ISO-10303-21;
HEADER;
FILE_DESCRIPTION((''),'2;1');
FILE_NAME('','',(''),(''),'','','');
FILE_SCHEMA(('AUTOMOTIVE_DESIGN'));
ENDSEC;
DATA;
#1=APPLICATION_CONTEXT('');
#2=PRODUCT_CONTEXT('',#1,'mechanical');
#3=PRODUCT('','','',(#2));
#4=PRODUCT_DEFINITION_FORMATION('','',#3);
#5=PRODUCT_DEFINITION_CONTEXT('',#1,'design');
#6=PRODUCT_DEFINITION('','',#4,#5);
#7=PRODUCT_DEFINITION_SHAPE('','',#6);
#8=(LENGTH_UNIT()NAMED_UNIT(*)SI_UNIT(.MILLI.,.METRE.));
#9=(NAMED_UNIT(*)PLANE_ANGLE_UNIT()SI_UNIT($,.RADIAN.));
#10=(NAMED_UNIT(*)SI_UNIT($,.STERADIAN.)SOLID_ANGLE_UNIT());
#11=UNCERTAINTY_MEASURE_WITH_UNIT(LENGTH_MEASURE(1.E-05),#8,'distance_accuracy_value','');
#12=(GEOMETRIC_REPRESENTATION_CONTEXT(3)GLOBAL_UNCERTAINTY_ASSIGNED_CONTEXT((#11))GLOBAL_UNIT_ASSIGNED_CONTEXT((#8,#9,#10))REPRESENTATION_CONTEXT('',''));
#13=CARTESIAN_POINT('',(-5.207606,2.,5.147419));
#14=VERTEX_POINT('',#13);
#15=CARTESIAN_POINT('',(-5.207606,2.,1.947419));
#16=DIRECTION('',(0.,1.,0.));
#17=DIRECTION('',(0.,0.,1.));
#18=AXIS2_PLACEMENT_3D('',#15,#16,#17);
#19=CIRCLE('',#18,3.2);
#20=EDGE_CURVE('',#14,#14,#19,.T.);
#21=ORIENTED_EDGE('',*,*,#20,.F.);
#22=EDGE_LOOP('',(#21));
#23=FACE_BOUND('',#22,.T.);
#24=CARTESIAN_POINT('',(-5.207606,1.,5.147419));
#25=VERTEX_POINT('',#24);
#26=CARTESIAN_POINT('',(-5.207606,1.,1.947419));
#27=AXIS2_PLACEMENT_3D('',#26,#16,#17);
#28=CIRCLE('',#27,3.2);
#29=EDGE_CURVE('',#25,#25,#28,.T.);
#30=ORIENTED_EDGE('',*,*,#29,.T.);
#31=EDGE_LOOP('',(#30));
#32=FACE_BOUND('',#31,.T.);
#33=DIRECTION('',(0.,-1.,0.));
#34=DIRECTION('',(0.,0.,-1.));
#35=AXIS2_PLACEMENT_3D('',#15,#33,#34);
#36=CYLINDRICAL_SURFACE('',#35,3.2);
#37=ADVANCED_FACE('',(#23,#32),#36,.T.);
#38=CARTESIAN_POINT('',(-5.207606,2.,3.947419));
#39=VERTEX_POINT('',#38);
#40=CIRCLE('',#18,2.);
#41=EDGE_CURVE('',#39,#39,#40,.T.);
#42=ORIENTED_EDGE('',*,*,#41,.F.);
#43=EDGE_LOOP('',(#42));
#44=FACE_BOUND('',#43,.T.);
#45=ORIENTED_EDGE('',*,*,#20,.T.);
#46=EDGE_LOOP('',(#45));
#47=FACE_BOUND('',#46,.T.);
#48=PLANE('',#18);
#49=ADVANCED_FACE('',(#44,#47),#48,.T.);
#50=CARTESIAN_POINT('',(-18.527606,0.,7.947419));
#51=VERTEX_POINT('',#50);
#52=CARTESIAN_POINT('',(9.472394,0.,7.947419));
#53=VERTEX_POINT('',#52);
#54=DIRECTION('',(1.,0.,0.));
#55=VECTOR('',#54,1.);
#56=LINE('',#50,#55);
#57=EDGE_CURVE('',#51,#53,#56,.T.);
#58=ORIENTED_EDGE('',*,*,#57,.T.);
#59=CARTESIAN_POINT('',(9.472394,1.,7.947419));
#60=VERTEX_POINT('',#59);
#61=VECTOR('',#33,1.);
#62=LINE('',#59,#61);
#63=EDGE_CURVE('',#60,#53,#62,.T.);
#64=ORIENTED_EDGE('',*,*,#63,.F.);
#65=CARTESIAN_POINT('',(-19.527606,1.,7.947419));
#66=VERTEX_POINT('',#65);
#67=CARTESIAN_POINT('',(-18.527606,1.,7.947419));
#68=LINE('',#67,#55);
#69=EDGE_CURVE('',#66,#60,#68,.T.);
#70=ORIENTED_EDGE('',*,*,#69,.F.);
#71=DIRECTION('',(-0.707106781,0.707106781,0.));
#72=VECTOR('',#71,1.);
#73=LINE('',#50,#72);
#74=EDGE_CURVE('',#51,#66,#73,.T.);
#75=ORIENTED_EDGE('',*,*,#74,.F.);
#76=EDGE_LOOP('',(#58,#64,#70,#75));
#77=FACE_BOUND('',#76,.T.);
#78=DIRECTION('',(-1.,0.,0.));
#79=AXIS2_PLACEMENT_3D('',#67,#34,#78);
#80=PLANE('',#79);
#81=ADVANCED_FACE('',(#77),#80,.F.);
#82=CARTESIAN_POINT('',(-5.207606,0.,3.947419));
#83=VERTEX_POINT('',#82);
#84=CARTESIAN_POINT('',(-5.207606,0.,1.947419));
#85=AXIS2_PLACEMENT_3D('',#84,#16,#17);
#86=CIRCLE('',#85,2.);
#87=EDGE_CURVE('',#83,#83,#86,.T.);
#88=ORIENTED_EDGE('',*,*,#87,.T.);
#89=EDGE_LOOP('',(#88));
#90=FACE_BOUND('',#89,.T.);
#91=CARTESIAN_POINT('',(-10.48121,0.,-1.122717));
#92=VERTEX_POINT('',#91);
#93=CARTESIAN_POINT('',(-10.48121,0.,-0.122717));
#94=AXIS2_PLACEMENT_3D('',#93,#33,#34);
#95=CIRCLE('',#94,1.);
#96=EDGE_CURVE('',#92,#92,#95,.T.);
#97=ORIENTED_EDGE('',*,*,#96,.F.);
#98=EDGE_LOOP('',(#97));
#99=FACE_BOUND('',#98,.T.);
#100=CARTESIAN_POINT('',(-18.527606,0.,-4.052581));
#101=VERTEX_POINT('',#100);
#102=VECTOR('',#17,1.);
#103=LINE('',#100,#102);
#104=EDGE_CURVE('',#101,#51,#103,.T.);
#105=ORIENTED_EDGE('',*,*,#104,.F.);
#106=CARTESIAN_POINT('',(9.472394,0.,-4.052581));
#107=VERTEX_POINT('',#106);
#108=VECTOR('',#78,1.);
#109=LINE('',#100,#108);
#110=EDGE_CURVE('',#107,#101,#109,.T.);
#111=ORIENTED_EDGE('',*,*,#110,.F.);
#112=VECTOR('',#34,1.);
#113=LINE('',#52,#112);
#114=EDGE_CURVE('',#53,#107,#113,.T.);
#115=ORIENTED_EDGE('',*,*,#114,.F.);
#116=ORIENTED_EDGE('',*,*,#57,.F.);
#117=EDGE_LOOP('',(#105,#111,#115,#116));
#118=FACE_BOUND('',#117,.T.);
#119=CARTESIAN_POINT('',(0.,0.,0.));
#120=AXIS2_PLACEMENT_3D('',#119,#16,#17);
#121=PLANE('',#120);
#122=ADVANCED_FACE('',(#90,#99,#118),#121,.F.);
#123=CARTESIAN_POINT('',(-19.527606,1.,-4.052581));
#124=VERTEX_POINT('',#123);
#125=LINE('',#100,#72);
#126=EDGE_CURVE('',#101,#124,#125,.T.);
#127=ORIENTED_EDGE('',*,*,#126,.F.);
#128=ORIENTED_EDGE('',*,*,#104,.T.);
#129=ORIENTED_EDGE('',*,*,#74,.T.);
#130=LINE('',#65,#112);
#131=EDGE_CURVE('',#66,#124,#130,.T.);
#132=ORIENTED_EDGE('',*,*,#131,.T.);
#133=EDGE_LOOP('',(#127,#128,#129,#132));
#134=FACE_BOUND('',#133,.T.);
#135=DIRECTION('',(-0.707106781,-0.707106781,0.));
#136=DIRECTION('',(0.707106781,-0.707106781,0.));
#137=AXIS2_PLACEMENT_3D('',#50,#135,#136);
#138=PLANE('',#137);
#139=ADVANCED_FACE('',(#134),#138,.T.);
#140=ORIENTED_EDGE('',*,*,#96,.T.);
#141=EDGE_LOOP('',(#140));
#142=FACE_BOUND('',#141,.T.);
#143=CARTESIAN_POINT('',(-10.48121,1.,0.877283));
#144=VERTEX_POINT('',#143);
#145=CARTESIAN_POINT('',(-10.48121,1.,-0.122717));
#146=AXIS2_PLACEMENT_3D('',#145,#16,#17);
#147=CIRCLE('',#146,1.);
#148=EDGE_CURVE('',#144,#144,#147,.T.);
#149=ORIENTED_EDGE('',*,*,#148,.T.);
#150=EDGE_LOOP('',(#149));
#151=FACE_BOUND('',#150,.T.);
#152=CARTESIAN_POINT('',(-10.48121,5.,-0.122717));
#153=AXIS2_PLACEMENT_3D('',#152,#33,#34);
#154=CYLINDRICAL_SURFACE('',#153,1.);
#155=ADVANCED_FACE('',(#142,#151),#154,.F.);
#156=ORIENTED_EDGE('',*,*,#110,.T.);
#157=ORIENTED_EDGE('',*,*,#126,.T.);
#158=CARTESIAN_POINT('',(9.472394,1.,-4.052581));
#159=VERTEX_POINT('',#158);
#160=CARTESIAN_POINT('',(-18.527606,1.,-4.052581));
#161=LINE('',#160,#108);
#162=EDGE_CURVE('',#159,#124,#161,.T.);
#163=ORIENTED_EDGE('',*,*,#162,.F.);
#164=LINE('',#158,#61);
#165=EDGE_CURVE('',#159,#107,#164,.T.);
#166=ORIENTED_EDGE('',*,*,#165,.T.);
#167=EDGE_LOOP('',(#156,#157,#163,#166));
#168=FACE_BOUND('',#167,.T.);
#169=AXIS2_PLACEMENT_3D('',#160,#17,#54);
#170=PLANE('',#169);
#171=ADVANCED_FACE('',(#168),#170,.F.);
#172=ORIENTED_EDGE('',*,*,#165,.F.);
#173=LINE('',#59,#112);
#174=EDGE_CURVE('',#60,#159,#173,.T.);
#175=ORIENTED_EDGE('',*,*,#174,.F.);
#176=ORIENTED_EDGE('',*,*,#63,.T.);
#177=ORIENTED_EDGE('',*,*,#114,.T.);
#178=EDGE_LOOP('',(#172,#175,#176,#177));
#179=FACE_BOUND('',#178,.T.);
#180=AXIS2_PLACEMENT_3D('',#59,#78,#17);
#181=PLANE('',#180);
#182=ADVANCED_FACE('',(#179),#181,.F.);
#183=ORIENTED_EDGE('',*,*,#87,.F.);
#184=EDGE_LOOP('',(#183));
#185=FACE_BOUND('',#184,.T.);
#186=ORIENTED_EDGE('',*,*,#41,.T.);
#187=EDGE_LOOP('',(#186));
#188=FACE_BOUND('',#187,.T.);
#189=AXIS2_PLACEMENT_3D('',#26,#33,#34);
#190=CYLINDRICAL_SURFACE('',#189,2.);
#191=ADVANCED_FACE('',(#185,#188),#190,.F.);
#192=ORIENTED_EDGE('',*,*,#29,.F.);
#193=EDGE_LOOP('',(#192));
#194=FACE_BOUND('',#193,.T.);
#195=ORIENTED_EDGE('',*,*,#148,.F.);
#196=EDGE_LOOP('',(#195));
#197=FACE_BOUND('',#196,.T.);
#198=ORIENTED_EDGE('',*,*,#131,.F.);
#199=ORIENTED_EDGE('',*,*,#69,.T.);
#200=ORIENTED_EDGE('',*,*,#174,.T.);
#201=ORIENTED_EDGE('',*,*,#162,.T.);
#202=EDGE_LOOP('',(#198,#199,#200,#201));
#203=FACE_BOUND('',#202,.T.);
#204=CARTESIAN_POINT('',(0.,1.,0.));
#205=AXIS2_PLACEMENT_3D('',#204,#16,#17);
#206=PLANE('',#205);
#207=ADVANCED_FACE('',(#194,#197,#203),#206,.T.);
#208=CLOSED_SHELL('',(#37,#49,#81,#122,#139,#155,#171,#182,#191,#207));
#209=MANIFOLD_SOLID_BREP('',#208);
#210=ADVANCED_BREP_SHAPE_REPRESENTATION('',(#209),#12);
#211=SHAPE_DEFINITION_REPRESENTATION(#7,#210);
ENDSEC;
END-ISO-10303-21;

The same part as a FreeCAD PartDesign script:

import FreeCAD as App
import Part
import Sketcher


def add_polygon(sketch, points):
    """Adds a closed chain of lines whose ends are joined by coincident constraints."""
    first, n = sketch.GeometryCount, len(points)
    for a, b in zip(points, points[1:] + points[:1]):
        sketch.addGeometry(Part.LineSegment(App.Vector(*a, 0), App.Vector(*b, 0)), False)
    for i in range(n):
        sketch.addConstraint(Sketcher.Constraint("Coincident", first + i, 2, first + (i + 1) % n, 1))

doc = App.newDocument("Part")
body = doc.addObject("PartDesign::Body", "Body")

# Sketch on XZ plane
sketch1 = doc.addObject("Sketcher::SketchObject", "Sketch")
body.addObject(sketch1)
sketch1.AttachmentSupport = (doc.XZ_Plane, [""])
sketch1.MapMode = "FlatFace"
add_polygon(sketch1, [(-18.527606, -4.052581), (-18.527606, 7.947419), (11.472394, 7.947419), (11.472394, -4.052581)])  # lines 0-3
sketch1.addGeometry(Part.Circle(App.Vector(-5.207606, 1.947419, 0), App.Vector(0, 0, 1), 2), False)  # 4
sketch1.addConstraint(Sketcher.Constraint("Vertical", 0))
sketch1.addConstraint(Sketcher.Constraint("Horizontal", 1))
sketch1.addConstraint(Sketcher.Constraint("Vertical", 2))
sketch1.addConstraint(Sketcher.Constraint("Horizontal", 3))
sketch1.addConstraint(Sketcher.Constraint("Diameter", 4, 4.0))
sketch1.addConstraint(Sketcher.Constraint("DistanceX", 1, 1, 1, 2, 30.0))
sketch1.addConstraint(Sketcher.Constraint("DistanceY", 0, 1, 0, 2, 12.0))
sketch1.addConstraint(Sketcher.Constraint("DistanceY", 4, 3, 0, 2, 6.0))
sketch1.addConstraint(Sketcher.Constraint("DistanceX", 0, 2, 4, 3, 13.32))
sketch1.addConstraint(Sketcher.Constraint("DistanceY", -1, 1, 4, 3, 1.947419))
sketch1.addConstraint(Sketcher.Constraint("DistanceX", 4, 3, -1, 1, 5.207606))
pad1 = doc.addObject("PartDesign::Pad", "Pad")
body.addObject(pad1)
pad1.Profile = sketch1
pad1.Length = 1
pad1.Reversed = True

# Sketch on XZ plane
sketch2 = doc.addObject("Sketcher::SketchObject", "Sketch001")
body.addObject(sketch2)
sketch2.AttachmentSupport = (doc.XZ_Plane, [""])
sketch2.MapMode = "FlatFace"
sketch2.AttachmentOffset = App.Placement(App.Vector(0, 0, -1), App.Rotation())
sketch2.addGeometry(Part.Circle(App.Vector(-5.207606, 1.947419, 0), App.Vector(0, 0, 1), 3.2), False)
sketch2.addGeometry(Part.Circle(App.Vector(-5.207606, 1.947419, 0), App.Vector(0, 0, 1), 2), False)
sketch2.addConstraint(Sketcher.Constraint("Coincident", 1, 3, 0, 3))
sketch2.addConstraint(Sketcher.Constraint("Diameter", 1, 4.0))
sketch2.addConstraint(Sketcher.Constraint("Diameter", 0, 6.4))
sketch2.addConstraint(Sketcher.Constraint("DistanceY", -1, 1, 0, 3, 1.947419))
sketch2.addConstraint(Sketcher.Constraint("DistanceX", 0, 3, -1, 1, 5.207606))
pad2 = doc.addObject("PartDesign::Pad", "Pad001")
body.addObject(pad2)
pad2.Profile = sketch2
pad2.Length = 1
pad2.Reversed = True

# Sketch on XZ plane
sketch3 = doc.addObject("Sketcher::SketchObject", "Sketch002")
body.addObject(sketch3)
sketch3.AttachmentSupport = (doc.XZ_Plane, [""])
sketch3.MapMode = "FlatFace"
sketch3.addGeometry(Part.Circle(App.Vector(-10.48121, -0.122717, 0), App.Vector(0, 0, 1), 1), False)
sketch3.addConstraint(Sketcher.Constraint("Diameter", 0, 2.0))
sketch3.addConstraint(Sketcher.Constraint("DistanceX", 0, 3, -1, 1, 10.48121))
sketch3.addConstraint(Sketcher.Constraint("DistanceY", 0, 3, -1, 1, 0.122717))
pocket1 = doc.addObject("PartDesign::Pocket", "Pocket")
body.addObject(pocket1)
pocket1.Profile = sketch3
pocket1.Length = 5

# Sketch on XY plane
sketch4 = doc.addObject("Sketcher::SketchObject", "Sketch003")
body.addObject(sketch4)
sketch4.AttachmentSupport = (doc.XY_Plane, [""])
sketch4.MapMode = "FlatFace"
sketch4.AttachmentOffset = App.Placement(App.Vector(0, 0, -4.052581), App.Rotation())
add_polygon(sketch4, [(-18.527606, 1), (-18.527606, 0), (-19.527606, 1)])  # lines 0-2
sketch4.addConstraint(Sketcher.Constraint("Vertical", 0))
sketch4.addConstraint(Sketcher.Constraint("Horizontal", 2))
sketch4.addConstraint(Sketcher.Constraint("PointOnObject", 0, 2, -1))
sketch4.addConstraint(Sketcher.Constraint("Equal", 2, 0))
sketch4.addConstraint(Sketcher.Constraint("DistanceX", 2, 1, 2, 2, 1.0))
sketch4.addConstraint(Sketcher.Constraint("DistanceX", 0, 2, -1, 1, 18.527606))
pad3 = doc.addObject("PartDesign::Pad", "Pad002")
body.addObject(pad3)
pad3.Profile = sketch4
pad3.Length = 12

# Sketch on XZ plane
sketch5 = doc.addObject("Sketcher::SketchObject", "Sketch004")
body.addObject(sketch5)
sketch5.AttachmentSupport = (doc.XZ_Plane, [""])
sketch5.MapMode = "FlatFace"
add_polygon(sketch5, [(9.472394, 7.947419), (9.472394, -4.052581), (11.472394, -4.052581), (11.472394, 7.947419)])  # lines 0-3
sketch5.addConstraint(Sketcher.Constraint("Vertical", 0))
sketch5.addConstraint(Sketcher.Constraint("Horizontal", 1))
sketch5.addConstraint(Sketcher.Constraint("Vertical", 2))
sketch5.addConstraint(Sketcher.Constraint("Horizontal", 3))
sketch5.addConstraint(Sketcher.Constraint("DistanceX", 1, 1, 1, 2, 2.0))
sketch5.addConstraint(Sketcher.Constraint("DistanceY", 0, 2, 0, 1, 12.0))
sketch5.addConstraint(Sketcher.Constraint("DistanceY", 0, 2, -1, 1, 4.052581))
sketch5.addConstraint(Sketcher.Constraint("DistanceX", -1, 1, 0, 2, 9.472394))
pocket2 = doc.addObject("PartDesign::Pocket", "Pocket001")
body.addObject(pocket2)
pocket2.Profile = sketch5
pocket2.Length = 1

doc.recompute()
